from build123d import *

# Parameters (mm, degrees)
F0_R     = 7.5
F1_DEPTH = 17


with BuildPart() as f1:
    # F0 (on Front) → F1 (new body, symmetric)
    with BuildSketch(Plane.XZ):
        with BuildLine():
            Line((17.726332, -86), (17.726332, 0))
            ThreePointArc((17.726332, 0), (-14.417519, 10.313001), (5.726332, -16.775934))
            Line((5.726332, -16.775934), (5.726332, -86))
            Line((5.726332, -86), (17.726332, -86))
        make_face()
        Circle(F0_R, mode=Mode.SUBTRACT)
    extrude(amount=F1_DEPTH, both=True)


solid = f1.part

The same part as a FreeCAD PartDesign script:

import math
import FreeCAD as App
import Part
import Sketcher

V = App.Vector
Q = App.Units.Quantity

doc = App.newDocument("Part")
body = doc.addObject("PartDesign::Body", "Body")

# Sketch on XZ plane
sketch1 = body.newObject("Sketcher::SketchObject", "Sketch")
sketch1.AttachmentSupport = (doc.getObject("XZ_Plane"), [""])
sketch1.MapMode = "FlatFace"
sketch1.addGeometry([
    Part.LineSegment(V(18, -86, 0), V(18, 0, 0)),  # 0
    Part.ArcOfCircle(Part.Circle(V(0, 0, 0), V(0, 0, 1), 18), math.radians(0), math.radians(289)),  # 1
    Part.LineSegment(V(6, -17, 0), V(6, -86, 0)),  # 2
    Part.LineSegment(V(6, -86, 0), V(18, -86, 0)),  # 3
    Part.Circle(V(0, 0, 0), V(0, 0, 1), 8),  # 4
], False)
sketch1.addConstraint([
    Sketcher.Constraint("Tangent", 0, 2, 1, 1),
    Sketcher.Constraint("Coincident", 1, 2, 2, 1),
    Sketcher.Constraint("Coincident", 2, 2, 3, 1),
    Sketcher.Constraint("Coincident", 3, 2, 0, 1),
    Sketcher.Constraint("Vertical", 0),
    Sketcher.Constraint("Vertical", 2),
    Sketcher.Constraint("Horizontal", 3),
    Sketcher.Constraint("Coincident", 1, 3, -1, 1),
    Sketcher.Constraint("Coincident", 4, 3, -1, 1),
    Sketcher.Constraint("Diameter", 4, Q("15 mm")),
    Sketcher.Constraint("DistanceX", 3, 1, 3, 2, Q("12 mm")),
    Sketcher.Constraint("DistanceY", 0, 1, 0, 2, Q("86 mm")),
    Sketcher.Constraint("Radius", 1, Q("17.726332 mm")),
])
pad1 = body.newObject("PartDesign::Pad", "Pad")
pad1.Profile = sketch1
pad1.Length = 34
pad1.Midplane = True

doc.recompute()
